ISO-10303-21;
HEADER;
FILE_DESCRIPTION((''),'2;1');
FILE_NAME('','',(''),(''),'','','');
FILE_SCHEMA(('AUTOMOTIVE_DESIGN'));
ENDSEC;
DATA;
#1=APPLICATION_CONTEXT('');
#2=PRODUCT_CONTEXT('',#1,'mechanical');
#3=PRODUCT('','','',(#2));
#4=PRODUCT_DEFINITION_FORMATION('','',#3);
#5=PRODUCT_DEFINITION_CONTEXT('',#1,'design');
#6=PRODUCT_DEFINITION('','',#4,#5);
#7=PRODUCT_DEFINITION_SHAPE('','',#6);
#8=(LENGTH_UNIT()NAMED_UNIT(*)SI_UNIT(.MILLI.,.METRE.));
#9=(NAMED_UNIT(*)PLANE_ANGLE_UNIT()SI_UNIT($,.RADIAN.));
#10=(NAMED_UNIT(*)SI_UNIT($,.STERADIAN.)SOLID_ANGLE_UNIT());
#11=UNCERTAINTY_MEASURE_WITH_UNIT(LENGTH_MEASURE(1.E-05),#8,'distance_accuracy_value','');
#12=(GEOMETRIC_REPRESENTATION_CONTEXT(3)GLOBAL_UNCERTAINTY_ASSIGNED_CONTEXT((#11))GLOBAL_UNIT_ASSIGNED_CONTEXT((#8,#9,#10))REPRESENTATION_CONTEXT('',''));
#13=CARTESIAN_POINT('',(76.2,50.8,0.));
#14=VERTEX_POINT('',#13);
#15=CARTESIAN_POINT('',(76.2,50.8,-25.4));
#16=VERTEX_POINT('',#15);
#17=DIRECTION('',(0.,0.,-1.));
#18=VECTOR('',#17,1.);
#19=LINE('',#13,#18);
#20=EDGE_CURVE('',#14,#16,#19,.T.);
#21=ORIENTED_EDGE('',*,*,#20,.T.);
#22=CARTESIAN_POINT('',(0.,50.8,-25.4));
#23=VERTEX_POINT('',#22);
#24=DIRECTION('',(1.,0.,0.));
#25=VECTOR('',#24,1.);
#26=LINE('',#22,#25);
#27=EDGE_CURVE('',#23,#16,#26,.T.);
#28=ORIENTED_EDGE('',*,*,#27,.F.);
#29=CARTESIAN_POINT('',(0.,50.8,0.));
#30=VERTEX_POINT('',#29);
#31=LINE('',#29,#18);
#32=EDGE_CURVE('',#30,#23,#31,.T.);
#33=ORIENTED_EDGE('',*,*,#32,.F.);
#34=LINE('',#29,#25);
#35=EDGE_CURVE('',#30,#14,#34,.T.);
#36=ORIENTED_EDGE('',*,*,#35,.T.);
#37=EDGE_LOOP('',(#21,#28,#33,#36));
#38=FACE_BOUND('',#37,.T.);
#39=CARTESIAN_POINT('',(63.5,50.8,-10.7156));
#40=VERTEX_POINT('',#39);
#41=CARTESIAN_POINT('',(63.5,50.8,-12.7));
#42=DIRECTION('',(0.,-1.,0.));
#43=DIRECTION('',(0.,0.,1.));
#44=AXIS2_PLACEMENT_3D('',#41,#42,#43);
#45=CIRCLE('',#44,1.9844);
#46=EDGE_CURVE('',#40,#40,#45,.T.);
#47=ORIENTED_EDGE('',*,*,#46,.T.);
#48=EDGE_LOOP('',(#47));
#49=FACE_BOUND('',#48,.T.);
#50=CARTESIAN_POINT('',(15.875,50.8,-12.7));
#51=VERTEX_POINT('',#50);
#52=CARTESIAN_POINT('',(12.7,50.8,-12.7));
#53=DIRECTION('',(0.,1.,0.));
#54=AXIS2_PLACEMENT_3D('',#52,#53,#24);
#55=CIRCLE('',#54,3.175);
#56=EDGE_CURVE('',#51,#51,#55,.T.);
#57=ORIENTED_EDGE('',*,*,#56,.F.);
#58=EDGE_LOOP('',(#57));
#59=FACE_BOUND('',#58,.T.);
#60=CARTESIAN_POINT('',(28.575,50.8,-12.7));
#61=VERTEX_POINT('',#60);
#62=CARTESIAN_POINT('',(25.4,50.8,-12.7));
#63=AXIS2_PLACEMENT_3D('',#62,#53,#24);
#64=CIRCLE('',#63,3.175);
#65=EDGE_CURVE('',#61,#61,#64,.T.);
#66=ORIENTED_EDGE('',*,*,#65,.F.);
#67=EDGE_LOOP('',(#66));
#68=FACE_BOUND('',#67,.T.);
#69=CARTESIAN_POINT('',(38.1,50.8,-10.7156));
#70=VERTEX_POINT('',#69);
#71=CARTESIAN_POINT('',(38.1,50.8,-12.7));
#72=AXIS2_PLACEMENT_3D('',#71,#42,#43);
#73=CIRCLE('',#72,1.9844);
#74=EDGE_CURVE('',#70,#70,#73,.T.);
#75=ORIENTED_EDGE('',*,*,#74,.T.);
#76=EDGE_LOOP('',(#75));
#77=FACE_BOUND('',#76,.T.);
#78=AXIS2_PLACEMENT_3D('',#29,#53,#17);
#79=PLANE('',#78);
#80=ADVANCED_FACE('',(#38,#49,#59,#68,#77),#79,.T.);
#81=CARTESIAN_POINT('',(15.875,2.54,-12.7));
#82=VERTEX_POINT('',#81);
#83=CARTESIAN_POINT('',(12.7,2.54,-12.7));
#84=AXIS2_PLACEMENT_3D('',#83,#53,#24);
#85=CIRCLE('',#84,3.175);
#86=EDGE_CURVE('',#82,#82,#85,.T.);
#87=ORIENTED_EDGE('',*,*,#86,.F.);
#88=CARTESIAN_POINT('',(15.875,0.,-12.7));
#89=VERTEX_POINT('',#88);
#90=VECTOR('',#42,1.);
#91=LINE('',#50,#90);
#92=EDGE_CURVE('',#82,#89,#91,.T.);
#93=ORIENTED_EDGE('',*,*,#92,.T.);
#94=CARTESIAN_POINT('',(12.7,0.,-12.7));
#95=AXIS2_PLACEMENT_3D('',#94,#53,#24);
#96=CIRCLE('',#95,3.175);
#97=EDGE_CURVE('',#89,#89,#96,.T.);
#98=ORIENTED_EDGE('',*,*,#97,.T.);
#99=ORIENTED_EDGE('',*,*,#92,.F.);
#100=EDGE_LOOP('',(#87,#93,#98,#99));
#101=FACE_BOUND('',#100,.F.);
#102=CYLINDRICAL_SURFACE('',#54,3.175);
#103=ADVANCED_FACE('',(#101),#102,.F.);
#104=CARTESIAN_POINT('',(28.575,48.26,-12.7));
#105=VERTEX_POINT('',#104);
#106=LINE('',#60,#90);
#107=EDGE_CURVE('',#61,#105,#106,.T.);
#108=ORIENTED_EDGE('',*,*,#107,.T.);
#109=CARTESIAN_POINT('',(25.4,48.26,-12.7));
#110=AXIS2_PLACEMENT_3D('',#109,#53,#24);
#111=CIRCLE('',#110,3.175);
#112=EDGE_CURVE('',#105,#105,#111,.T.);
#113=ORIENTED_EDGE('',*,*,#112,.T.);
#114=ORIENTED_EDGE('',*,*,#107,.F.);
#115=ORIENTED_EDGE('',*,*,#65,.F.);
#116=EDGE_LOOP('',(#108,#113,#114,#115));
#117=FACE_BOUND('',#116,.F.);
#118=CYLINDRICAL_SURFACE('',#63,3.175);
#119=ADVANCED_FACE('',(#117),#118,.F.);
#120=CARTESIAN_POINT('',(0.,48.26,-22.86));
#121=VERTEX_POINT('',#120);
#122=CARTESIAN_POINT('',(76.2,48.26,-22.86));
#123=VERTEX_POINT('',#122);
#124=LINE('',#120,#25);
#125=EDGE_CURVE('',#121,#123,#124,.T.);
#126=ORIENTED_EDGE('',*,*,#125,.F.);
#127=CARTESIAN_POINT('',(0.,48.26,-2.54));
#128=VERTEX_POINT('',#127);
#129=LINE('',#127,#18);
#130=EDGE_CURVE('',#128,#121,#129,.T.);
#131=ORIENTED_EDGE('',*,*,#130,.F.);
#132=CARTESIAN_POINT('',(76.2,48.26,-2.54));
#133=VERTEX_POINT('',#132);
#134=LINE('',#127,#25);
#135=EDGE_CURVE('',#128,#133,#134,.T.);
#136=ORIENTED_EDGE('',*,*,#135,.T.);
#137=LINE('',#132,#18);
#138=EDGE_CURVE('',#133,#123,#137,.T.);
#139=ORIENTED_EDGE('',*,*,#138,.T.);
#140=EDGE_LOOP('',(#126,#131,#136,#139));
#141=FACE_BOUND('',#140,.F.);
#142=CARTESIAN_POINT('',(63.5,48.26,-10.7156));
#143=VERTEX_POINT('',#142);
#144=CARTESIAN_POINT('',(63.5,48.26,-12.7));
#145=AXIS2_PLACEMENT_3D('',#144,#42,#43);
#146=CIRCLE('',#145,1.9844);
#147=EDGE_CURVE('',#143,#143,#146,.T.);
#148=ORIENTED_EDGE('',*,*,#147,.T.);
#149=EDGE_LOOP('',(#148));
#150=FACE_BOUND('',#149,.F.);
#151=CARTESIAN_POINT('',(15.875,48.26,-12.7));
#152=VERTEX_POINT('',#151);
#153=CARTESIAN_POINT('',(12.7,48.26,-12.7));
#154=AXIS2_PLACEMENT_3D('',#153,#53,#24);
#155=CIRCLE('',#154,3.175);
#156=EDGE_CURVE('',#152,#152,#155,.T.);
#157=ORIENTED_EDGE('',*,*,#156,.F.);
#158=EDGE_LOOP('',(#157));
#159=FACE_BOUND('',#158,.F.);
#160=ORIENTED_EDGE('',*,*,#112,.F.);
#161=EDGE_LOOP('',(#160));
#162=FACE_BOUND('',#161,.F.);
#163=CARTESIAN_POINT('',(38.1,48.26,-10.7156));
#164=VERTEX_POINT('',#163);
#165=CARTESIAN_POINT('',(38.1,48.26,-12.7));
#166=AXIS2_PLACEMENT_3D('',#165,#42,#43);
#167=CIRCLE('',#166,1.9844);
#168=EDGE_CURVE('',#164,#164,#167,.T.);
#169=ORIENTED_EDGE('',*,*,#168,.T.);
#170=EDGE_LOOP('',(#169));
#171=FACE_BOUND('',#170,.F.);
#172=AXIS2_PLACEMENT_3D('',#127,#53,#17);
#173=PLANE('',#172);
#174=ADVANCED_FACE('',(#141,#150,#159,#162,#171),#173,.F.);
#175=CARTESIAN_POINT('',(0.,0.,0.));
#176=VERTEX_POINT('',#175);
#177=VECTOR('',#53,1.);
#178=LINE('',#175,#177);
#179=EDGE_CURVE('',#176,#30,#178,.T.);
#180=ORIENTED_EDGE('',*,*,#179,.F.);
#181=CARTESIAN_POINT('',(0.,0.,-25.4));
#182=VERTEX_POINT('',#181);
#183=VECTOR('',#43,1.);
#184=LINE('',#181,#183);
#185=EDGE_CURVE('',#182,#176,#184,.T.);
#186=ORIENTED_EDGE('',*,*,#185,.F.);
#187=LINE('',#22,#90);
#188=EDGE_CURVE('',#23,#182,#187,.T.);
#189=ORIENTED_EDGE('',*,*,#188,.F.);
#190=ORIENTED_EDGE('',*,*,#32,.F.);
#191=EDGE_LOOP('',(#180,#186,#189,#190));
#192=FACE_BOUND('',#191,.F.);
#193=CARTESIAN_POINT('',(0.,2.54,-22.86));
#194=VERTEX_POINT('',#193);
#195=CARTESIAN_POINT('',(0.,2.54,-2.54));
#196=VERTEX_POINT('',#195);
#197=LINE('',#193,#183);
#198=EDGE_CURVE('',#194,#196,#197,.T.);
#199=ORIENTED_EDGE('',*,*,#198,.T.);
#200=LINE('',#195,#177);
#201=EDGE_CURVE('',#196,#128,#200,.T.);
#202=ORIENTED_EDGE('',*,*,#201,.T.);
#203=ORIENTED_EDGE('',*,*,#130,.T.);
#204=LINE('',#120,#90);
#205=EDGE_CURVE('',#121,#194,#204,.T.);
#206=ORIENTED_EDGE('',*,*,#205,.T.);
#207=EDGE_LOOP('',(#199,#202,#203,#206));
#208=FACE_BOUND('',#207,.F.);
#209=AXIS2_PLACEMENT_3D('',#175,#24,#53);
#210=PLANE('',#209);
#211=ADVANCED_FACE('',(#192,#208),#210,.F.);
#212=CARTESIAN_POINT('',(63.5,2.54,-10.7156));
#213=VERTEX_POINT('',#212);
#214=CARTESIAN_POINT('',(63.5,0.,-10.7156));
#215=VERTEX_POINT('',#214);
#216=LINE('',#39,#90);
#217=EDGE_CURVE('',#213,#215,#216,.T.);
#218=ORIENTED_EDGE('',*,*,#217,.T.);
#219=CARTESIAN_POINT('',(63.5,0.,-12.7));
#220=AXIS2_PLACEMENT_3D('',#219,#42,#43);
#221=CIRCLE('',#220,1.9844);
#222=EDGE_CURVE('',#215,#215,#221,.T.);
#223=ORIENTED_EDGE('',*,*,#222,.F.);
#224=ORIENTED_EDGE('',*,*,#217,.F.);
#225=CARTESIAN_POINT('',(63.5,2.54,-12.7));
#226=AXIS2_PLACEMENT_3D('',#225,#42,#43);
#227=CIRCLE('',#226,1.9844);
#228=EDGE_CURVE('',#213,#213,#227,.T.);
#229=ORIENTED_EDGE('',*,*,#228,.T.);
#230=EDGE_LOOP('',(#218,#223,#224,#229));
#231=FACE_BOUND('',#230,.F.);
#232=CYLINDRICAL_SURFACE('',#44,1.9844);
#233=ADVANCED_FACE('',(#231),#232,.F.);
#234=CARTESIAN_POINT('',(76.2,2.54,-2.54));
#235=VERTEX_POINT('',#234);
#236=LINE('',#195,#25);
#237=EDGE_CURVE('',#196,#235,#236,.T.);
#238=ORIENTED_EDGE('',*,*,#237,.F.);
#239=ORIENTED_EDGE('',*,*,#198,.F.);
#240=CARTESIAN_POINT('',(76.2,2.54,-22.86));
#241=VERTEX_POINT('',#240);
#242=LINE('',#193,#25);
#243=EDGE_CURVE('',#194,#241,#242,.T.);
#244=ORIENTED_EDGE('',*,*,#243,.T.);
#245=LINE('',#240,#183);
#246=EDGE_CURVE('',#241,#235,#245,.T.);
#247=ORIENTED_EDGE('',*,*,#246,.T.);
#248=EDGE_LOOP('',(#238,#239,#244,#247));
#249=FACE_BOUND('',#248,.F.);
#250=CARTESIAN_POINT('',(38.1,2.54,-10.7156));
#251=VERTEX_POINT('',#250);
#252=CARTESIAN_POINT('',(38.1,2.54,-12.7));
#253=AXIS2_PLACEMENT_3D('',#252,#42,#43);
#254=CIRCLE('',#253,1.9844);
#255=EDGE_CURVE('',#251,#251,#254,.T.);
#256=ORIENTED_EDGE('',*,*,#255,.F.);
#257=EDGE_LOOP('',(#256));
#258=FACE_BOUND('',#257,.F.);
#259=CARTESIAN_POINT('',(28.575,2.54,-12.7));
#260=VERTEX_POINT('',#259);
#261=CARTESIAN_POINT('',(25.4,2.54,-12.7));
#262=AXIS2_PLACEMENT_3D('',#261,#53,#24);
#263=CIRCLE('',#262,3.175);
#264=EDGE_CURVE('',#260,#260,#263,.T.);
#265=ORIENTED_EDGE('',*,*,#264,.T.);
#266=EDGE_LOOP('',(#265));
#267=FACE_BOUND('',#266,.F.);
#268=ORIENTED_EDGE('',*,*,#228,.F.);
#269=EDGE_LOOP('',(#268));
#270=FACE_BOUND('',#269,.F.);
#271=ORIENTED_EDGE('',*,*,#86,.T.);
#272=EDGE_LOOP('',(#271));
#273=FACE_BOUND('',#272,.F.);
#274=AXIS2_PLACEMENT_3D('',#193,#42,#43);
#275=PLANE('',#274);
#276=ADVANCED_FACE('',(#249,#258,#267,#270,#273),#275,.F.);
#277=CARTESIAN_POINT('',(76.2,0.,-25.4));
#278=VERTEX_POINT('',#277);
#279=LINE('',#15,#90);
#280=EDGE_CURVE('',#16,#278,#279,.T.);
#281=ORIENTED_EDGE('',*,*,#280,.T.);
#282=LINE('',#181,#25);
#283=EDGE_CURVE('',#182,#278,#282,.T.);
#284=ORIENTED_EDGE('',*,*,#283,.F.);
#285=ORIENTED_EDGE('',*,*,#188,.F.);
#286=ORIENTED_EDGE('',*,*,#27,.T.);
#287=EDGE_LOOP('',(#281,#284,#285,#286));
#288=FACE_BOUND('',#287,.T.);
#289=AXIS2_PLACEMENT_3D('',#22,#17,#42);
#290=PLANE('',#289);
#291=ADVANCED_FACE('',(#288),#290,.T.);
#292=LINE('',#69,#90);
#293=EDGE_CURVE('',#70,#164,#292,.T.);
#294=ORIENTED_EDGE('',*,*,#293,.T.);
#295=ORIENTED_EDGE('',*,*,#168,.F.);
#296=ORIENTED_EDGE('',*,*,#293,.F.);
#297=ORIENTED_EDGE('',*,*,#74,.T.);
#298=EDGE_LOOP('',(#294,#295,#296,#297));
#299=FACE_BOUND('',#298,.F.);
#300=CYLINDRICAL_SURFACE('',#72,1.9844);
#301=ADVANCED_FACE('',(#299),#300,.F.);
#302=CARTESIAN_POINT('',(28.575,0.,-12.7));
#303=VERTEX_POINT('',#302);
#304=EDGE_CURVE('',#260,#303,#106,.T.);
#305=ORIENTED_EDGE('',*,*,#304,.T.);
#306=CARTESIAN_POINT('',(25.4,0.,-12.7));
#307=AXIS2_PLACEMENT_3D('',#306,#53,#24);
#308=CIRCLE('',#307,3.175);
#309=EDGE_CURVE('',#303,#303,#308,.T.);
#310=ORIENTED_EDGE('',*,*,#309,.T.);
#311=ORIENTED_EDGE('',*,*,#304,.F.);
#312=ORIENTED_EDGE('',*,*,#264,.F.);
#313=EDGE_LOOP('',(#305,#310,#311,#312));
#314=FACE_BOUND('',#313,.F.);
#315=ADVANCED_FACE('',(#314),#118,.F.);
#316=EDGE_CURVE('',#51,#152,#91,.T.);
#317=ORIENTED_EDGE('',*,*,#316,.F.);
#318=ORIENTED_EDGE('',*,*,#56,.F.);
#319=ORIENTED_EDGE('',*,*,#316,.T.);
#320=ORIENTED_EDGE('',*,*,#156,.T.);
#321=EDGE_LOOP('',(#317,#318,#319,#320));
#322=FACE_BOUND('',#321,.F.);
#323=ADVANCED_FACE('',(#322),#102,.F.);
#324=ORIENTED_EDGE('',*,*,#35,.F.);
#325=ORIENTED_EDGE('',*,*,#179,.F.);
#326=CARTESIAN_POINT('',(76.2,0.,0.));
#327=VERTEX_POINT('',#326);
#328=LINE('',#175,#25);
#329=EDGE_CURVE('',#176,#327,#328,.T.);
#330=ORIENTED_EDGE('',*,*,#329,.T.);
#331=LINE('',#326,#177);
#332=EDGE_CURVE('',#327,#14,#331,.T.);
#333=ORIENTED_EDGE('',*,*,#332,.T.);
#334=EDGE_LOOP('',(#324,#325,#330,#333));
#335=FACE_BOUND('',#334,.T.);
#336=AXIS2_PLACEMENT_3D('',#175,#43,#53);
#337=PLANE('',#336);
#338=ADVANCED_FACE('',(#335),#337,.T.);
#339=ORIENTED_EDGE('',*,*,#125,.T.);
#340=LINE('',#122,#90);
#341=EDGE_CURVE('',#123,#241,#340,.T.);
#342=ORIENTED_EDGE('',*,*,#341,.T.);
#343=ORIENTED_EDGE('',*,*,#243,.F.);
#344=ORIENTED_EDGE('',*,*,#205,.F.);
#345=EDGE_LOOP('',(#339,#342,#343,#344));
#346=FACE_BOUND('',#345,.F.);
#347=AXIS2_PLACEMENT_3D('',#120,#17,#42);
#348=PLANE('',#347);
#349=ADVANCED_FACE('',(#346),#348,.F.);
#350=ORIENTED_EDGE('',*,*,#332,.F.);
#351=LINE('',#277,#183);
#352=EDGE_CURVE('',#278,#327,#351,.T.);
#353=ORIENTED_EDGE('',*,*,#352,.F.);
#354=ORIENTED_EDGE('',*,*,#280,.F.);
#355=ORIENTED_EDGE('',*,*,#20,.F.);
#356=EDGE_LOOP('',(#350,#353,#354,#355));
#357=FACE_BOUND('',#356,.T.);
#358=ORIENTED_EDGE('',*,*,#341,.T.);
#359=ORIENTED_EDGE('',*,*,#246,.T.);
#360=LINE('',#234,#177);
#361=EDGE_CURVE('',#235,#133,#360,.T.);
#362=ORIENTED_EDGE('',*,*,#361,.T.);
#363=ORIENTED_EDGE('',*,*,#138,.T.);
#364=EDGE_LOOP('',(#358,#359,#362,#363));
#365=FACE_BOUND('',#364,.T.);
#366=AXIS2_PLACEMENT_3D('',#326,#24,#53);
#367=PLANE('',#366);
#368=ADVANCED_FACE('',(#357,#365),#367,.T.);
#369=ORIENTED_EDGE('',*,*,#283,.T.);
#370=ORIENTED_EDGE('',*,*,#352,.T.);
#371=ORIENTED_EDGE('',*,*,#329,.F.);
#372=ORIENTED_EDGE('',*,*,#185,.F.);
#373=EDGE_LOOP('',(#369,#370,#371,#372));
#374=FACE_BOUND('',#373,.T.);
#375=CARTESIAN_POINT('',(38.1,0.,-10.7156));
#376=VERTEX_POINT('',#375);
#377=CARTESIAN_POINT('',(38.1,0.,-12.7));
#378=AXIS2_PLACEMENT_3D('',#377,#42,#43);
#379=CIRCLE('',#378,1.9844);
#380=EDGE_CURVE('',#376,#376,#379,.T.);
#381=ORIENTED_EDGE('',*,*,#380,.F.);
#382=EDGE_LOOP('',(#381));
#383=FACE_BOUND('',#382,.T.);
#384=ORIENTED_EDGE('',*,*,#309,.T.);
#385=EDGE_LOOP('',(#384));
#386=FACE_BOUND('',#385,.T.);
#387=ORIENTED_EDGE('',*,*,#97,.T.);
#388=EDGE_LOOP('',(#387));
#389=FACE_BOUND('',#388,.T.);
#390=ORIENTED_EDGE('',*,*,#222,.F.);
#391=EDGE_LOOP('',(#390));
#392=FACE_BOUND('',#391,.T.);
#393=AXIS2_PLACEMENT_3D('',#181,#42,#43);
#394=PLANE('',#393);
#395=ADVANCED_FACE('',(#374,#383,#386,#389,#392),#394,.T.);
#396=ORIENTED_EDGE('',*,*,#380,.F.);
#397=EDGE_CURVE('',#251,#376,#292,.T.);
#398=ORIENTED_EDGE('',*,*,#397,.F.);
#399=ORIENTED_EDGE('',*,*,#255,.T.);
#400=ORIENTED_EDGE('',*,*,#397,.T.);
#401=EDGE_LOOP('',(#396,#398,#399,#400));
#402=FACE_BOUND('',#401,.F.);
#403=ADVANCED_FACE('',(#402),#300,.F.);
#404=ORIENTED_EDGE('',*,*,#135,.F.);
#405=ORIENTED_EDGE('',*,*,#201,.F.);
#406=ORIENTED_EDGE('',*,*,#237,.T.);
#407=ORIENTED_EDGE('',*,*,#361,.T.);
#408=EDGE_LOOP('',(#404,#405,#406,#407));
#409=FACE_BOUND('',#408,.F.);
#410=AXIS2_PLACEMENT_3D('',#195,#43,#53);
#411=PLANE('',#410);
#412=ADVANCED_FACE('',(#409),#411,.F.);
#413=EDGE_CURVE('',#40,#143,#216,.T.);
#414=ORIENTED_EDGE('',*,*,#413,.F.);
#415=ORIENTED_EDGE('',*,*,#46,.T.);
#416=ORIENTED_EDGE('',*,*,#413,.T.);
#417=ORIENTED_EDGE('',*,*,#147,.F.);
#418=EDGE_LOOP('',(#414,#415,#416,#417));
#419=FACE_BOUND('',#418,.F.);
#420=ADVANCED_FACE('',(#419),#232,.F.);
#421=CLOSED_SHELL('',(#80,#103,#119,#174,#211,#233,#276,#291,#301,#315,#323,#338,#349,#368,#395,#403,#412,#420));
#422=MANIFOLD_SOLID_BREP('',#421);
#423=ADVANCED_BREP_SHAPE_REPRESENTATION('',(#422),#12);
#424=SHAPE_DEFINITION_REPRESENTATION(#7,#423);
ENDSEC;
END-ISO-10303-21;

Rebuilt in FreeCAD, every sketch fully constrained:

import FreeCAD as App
import Part
import Sketcher
from FreeCAD import Vector
Q = App.Units.Quantity

doc = App.newDocument("Part")
body = doc.addObject("PartDesign::Body", "Body")

sketch1 = body.newObject("Sketcher::SketchObject", "Sketch")
sketch1.AttachmentSupport = (doc.getObject("YZ_Plane"), [""])
sketch1.MapMode = "FlatFace"
sketch1.addGeometry(Part.LineSegment(Vector(51, 0, 0), Vector(0, 0, 0)), False)
sketch1.addGeometry(Part.LineSegment(Vector(0, 0, 0), Vector(0, -25, 0)), False)
sketch1.addGeometry(Part.LineSegment(Vector(0, -25, 0), Vector(51, -25, 0)), False)
sketch1.addGeometry(Part.LineSegment(Vector(51, -25, 0), Vector(51, 0, 0)), False)
sketch1.addGeometry(Part.LineSegment(Vector(3, -23, 0), Vector(3, -3, 0)), False)
sketch1.addGeometry(Part.LineSegment(Vector(3, -3, 0), Vector(48, -3, 0)), False)
sketch1.addGeometry(Part.LineSegment(Vector(48, -3, 0), Vector(48, -23, 0)), False)
sketch1.addGeometry(Part.LineSegment(Vector(48, -23, 0), Vector(3, -23, 0)), False)
sketch1.addConstraint(Sketcher.Constraint("Coincident", 0, 2, 1, 1))
sketch1.addConstraint(Sketcher.Constraint("Coincident", 1, 2, 2, 1))
sketch1.addConstraint(Sketcher.Constraint("Coincident", 2, 2, 3, 1))
sketch1.addConstraint(Sketcher.Constraint("Coincident", 3, 2, 0, 1))
sketch1.addConstraint(Sketcher.Constraint("Coincident", 4, 2, 5, 1))
sketch1.addConstraint(Sketcher.Constraint("Coincident", 5, 2, 6, 1))
sketch1.addConstraint(Sketcher.Constraint("Coincident", 6, 2, 7, 1))
sketch1.addConstraint(Sketcher.Constraint("Coincident", 7, 2, 4, 1))
sketch1.addConstraint(Sketcher.Constraint("Horizontal", 0))
sketch1.addConstraint(Sketcher.Constraint("Vertical", 1))
sketch1.addConstraint(Sketcher.Constraint("Horizontal", 2))
sketch1.addConstraint(Sketcher.Constraint("Vertical", 3))
sketch1.addConstraint(Sketcher.Constraint("Vertical", 4))
sketch1.addConstraint(Sketcher.Constraint("Horizontal", 5))
sketch1.addConstraint(Sketcher.Constraint("Vertical", 6))
sketch1.addConstraint(Sketcher.Constraint("Horizontal", 7))
sketch1.addConstraint(Sketcher.Constraint("Coincident", 0, 2, -1, 1))
sketch1.addConstraint(Sketcher.Constraint("DistanceX", 0, 2, 0, 1, Q("2 in")))
sketch1.addConstraint(Sketcher.Constraint("DistanceY", 1, 2, 1, 1, Q("1 in")))
sketch1.addConstraint(Sketcher.Constraint("DistanceX", 5, 1, 5, 2, Q("1.8 in")))
sketch1.addConstraint(Sketcher.Constraint("DistanceY", 4, 1, 4, 2, Q("0.8 in")))
sketch1.addConstraint(Sketcher.Constraint("DistanceX", -1, 1, 4, 2, Q("0.1 in")))
sketch1.addConstraint(Sketcher.Constraint("DistanceY", 4, 2, -1, 1, Q("0.1 in")))
pad1 = body.newObject("PartDesign::Pad", "Pad")
pad1.Profile = sketch1
pad1.Length = Q("3 in")

sketch2 = body.newObject("Sketcher::SketchObject", "Sketch001")
sketch2.AttachmentSupport = (doc.getObject("XZ_Plane"), [""])
sketch2.MapMode = "FlatFace"
sketch2.AttachmentOffset = App.Placement(Vector(0, 0, -2 * 25.4), App.Rotation())
sketch2.addGeometry(Part.Circle(Vector(12.7, -12.7, 0), Vector(0, 0, 1), 2), False)
sketch2.addGeometry(Part.Circle(Vector(38.1, -12.7, 0), Vector(0, 0, 1), 2), False)
sketch2.addGeometry(Part.Circle(Vector(63.5, -12.7, 0), Vector(0, 0, 1), 2), False)
sketch2.addConstraint(Sketcher.Constraint("Equal", 0, 1))
sketch2.addConstraint(Sketcher.Constraint("Equal", 1, 2))
sketch2.addConstraint(Sketcher.Constraint("Horizontal", 0, 3, 1, 3))
sketch2.addConstraint(Sketcher.Constraint("Horizontal", 1, 3, 2, 3))
sketch2.addConstraint(Sketcher.Constraint("Diameter", 0, Q("0.156252 in")))
sketch2.addConstraint(Sketcher.Constraint("DistanceX", 0, 3, 1, 3, Q("1 in")))
sketch2.addConstraint(Sketcher.Constraint("DistanceX", 1, 3, 2, 3, Q("1 in")))
sketch2.addConstraint(Sketcher.Constraint("DistanceX", -1, 1, 0, 3, Q("0.5 in")))
sketch2.addConstraint(Sketcher.Constraint("DistanceY", 0, 3, -1, 1, Q("0.5 in")))
doc.recompute()
hole = body.newObject("PartDesign::Hole", "Hole")
hole.Profile = sketch2
hole.ThreadType = "None"
hole.Diameter = Q("0.156252 in")
hole.DepthType = "ThroughAll"
hole.Reversed = True

sketch3 = body.newObject("Sketcher::SketchObject", "Sketch002")
sketch3.AttachmentSupport = (doc.getObject("XZ_Plane"), [""])
sketch3.MapMode = "FlatFace"
sketch3.AttachmentOffset = App.Placement(Vector(0, 0, -2 * 25.4), App.Rotation())
sketch3.addGeometry(Part.Circle(Vector(25.4, -12.7, 0), Vector(0, 0, 1), 3.2), False)
sketch3.addGeometry(Part.Circle(Vector(12.7, -12.7, 0), Vector(0, 0, 1), 3.2), False)
sketch3.addGeometry(Part.Circle(Vector(12.7, -12.7, 0), Vector(0, 0, 1), 2), False)
sketch3.addConstraint(Sketcher.Constraint("Coincident", 2, 3, 1, 3))
sketch3.addConstraint(Sketcher.Constraint("Equal", 0, 1))
sketch3.addConstraint(Sketcher.Constraint("Horizontal", 0, 3, 1, 3))
sketch3.addConstraint(Sketcher.Constraint("Diameter", 0, Q("0.25 in")))
sketch3.addConstraint(Sketcher.Constraint("DistanceX", -1, 1, 0, 3, Q("1 in")))
sketch3.addConstraint(Sketcher.Constraint("DistanceY", 0, 3, -1, 1, Q("0.5 in")))
sketch3.addConstraint(Sketcher.Constraint("DistanceX", -1, 1, 1, 3, Q("0.5 in")))
sketch3.addConstraint(Sketcher.Constraint("Diameter", 2, Q("0.156252 in")))
pocket1 = body.newObject("PartDesign::Pocket", "Pocket")
pocket1.Profile = sketch3
pocket1.Length = Q("2 in")
pocket1.Reversed = True

doc.recompute()
